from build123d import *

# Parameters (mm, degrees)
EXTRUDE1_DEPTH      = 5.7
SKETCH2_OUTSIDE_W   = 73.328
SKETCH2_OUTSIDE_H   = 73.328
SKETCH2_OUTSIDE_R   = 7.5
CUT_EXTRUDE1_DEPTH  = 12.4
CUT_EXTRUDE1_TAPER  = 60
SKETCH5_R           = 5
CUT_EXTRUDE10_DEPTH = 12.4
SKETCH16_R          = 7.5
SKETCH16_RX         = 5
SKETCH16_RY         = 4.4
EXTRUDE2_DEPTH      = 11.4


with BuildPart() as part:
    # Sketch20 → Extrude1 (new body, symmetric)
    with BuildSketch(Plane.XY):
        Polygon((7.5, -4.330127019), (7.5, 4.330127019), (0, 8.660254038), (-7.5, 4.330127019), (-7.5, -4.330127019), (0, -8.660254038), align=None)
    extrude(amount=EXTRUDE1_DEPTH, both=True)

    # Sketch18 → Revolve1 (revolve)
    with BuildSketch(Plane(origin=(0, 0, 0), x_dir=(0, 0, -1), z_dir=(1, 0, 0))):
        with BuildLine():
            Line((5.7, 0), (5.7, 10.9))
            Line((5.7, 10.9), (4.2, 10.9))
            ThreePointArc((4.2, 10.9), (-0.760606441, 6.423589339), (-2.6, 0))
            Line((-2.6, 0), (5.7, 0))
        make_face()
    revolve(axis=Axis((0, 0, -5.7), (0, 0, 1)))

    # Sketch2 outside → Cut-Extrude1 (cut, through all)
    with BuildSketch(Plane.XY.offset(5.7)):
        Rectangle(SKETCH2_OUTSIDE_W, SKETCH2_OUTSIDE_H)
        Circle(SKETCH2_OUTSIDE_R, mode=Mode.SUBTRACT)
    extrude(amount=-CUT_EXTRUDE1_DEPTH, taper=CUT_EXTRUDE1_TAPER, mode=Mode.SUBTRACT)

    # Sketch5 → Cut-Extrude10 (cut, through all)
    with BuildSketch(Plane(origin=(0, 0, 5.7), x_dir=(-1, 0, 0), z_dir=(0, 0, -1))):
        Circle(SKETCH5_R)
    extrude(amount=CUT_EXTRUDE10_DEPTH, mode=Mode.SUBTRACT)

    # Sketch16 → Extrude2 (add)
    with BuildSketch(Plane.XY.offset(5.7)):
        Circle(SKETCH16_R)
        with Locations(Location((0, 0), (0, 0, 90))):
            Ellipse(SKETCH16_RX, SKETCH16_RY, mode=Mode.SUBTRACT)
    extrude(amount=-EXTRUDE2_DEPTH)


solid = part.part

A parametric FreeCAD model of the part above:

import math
import FreeCAD as App
import Part
import Sketcher
from FreeCAD import Vector
Q = App.Units.Quantity

doc = App.newDocument("Part")
params = doc.addObject("Spreadsheet::Sheet", "Params")
for row, (alias, value) in enumerate([
    ("pad1_length", "11.4 mm"),
    ("sketch2_width", "10.9 mm"),
    ("sketch2_height", "1.5 mm"),
    ("sketch2_height2", "8.3 mm"),
    ("revolution_angle", "360 deg"),
    ("sketch3_diameter", "15 mm"),
    ("pocket1_length", "12.4 mm"),
    ("pocket1_taper", "60 deg"),
    ("sketch4_diameter", "10 mm"),
    ("sketch5_diameter", "15 mm"),
    ("pad2_length", "11.4 mm"),
], start=1):
    params.set(f"A{row}", alias)
    params.set(f"B{row}", "=" + value)
    params.setAlias(f"B{row}", alias)

body = doc.addObject("PartDesign::Body", "Body")

sketch1 = body.newObject("Sketcher::SketchObject", "Sketch")
sketch1.AttachmentSupport = (doc.getObject("XY_Plane"), [""])
sketch1.MapMode = "FlatFace"
sketch1.addGeometry(Part.LineSegment(Vector(7.5, -4.330127, 0), Vector(7.5, 4.330127, 0)), False)
sketch1.addGeometry(Part.LineSegment(Vector(7.5, 4.330127, 0), Vector(0, 8.660254, 0)), False)
sketch1.addGeometry(Part.LineSegment(Vector(0, 8.660254, 0), Vector(-7.5, 4.330127, 0)), False)
sketch1.addGeometry(Part.LineSegment(Vector(-7.5, 4.330127, 0), Vector(-7.5, -4.330127, 0)), False)
sketch1.addGeometry(Part.LineSegment(Vector(-7.5, -4.330127, 0), Vector(0, -8.660254, 0)), False)
sketch1.addGeometry(Part.LineSegment(Vector(0, -8.660254, 0), Vector(7.5, -4.330127, 0)), False)
sketch1.addConstraint(Sketcher.Constraint("Coincident", 0, 2, 1, 1))
sketch1.addConstraint(Sketcher.Constraint("Coincident", 1, 2, 2, 1))
sketch1.addConstraint(Sketcher.Constraint("Coincident", 2, 2, 3, 1))
sketch1.addConstraint(Sketcher.Constraint("Coincident", 3, 2, 4, 1))
sketch1.addConstraint(Sketcher.Constraint("Coincident", 4, 2, 5, 1))
sketch1.addConstraint(Sketcher.Constraint("Coincident", 5, 2, 0, 1))
sketch1.addConstraint(Sketcher.Constraint("Vertical", 0))
sketch1.addConstraint(Sketcher.Constraint("Vertical", 3))
sketch1.addConstraint(Sketcher.Constraint("Symmetric", 0, 2, 3, 2, -1, 1))
sketch1.addConstraint(Sketcher.Constraint("Symmetric", 1, 2, 4, 2, -1, 1))
sketch1.addConstraint(Sketcher.Constraint("PointOnObject", 1, 2, -2))
sketch1.addConstraint(Sketcher.Constraint("Parallel", 2, 5))
sketch1.addConstraint(Sketcher.Constraint("Horizontal", 0, 2, 2, 2))
sketch1.addConstraint(Sketcher.Constraint("Angle", 1, Q("150 deg")))
sketch1.addConstraint(Sketcher.Constraint("DistanceX", 2, 2, 0, 2, 15.0))
sketch1.addConstraint(Sketcher.Constraint("DistanceY", 0, 1, 0, 2, 8.660254))
pad1 = body.newObject("PartDesign::Pad", "Pad")
pad1.Profile = sketch1
pad1.setExpression("Length", "Params.pad1_length")
pad1.Midplane = True

sketch2 = body.newObject("Sketcher::SketchObject", "Sketch001")
sketch2.AttachmentSupport = (doc.getObject("YZ_Plane"), [""])
sketch2.MapMode = "FlatFace"
sketch2.addGeometry(Part.LineSegment(Vector(0, -5.7, 0), Vector(10.9, -5.7, 0)), False)
sketch2.addGeometry(Part.LineSegment(Vector(10.9, -5.7, 0), Vector(10.9, -4.2, 0)), False)
sketch2.addGeometry(Part.ArcOfCircle(Part.Circle(Vector(0, -9.536029, 0), Vector(0, 0, 1), 12.136029), math.radians(26.083781), math.radians(90)), False)
sketch2.addGeometry(Part.LineSegment(Vector(0, 2.6, 0), Vector(0, -5.7, 0)), False)
sketch2.addConstraint(Sketcher.Constraint("Coincident", 0, 2, 1, 1))
sketch2.addConstraint(Sketcher.Constraint("Coincident", 1, 2, 2, 1))
sketch2.addConstraint(Sketcher.Constraint("Coincident", 2, 2, 3, 1))
sketch2.addConstraint(Sketcher.Constraint("Coincident", 3, 2, 0, 1))
sketch2.addConstraint(Sketcher.Constraint("Horizontal", 0))
sketch2.addConstraint(Sketcher.Constraint("Vertical", 1))
sketch2.addConstraint(Sketcher.Constraint("Vertical", 3))
sketch2.addConstraint(Sketcher.Constraint("PointOnObject", 2, 3, -2))
sketch2.addConstraint(Sketcher.Constraint("PointOnObject", 2, 2, -2))
sketch2.addConstraint(Sketcher.Constraint("DistanceX", 0, 1, 0, 2, 10.9))
sketch2.addConstraint(Sketcher.Constraint("DistanceY", 1, 1, 1, 2, 1.5))
sketch2.addConstraint(Sketcher.Constraint("DistanceY", 3, 2, 3, 1, 8.3))
sketch2.addConstraint(Sketcher.Constraint("DistanceY", 0, 2, -1, 1, 5.7))
sketch2.setExpression("Constraints[9]", "Params.sketch2_width")
sketch2.setExpression("Constraints[10]", "Params.sketch2_height")
sketch2.setExpression("Constraints[11]", "Params.sketch2_height2")
revolution = body.newObject("PartDesign::Revolution", "Revolution")
revolution.Profile = sketch2
revolution.ReferenceAxis = (sketch2, ["V_Axis"])
revolution.setExpression("Angle", "Params.revolution_angle")

sketch3 = body.newObject("Sketcher::SketchObject", "Sketch002")
sketch3.AttachmentSupport = (doc.getObject("XY_Plane"), [""])
sketch3.MapMode = "FlatFace"
sketch3.AttachmentOffset = App.Placement(Vector(0, 0, 5.7), App.Rotation())
sketch3.addGeometry(Part.LineSegment(Vector(-36.664, 36.664, 0), Vector(-36.664, -36.664, 0)), False)
sketch3.addGeometry(Part.LineSegment(Vector(-36.664, -36.664, 0), Vector(36.664, -36.664, 0)), False)
sketch3.addGeometry(Part.LineSegment(Vector(36.664, -36.664, 0), Vector(36.664, 36.664, 0)), False)
sketch3.addGeometry(Part.LineSegment(Vector(36.664, 36.664, 0), Vector(-36.664, 36.664, 0)), False)
sketch3.addGeometry(Part.Circle(Vector(0, 0, 0), Vector(0, 0, 1), 7.5), False)
sketch3.addConstraint(Sketcher.Constraint("Coincident", 0, 2, 1, 1))
sketch3.addConstraint(Sketcher.Constraint("Coincident", 1, 2, 2, 1))
sketch3.addConstraint(Sketcher.Constraint("Coincident", 2, 2, 3, 1))
sketch3.addConstraint(Sketcher.Constraint("Coincident", 3, 2, 0, 1))
sketch3.addConstraint(Sketcher.Constraint("Vertical", 0))
sketch3.addConstraint(Sketcher.Constraint("Horizontal", 1))
sketch3.addConstraint(Sketcher.Constraint("Vertical", 2))
sketch3.addConstraint(Sketcher.Constraint("Horizontal", 3))
sketch3.addConstraint(Sketcher.Constraint("Coincident", 4, 3, -1, 1))
sketch3.addConstraint(Sketcher.Constraint("Symmetric", 0, 2, 2, 2, -1, 1))
sketch3.addConstraint(Sketcher.Constraint("Equal", 3, 0))
sketch3.addConstraint(Sketcher.Constraint("Diameter", 4, 15.0))
sketch3.addConstraint(Sketcher.Constraint("DistanceX", 1, 1, 1, 2, 73.328))
sketch3.setExpression("Constraints[11]", "Params.sketch3_diameter")
pocket1 = body.newObject("PartDesign::Pocket", "Pocket")
pocket1.Profile = sketch3
pocket1.setExpression("Length", "Params.pocket1_length")
pocket1.setExpression("TaperAngle", "Params.pocket1_taper")

sketch4 = body.newObject("Sketcher::SketchObject", "Sketch003")
sketch4.AttachmentSupport = (doc.getObject("XY_Plane"), [""])
sketch4.MapMode = "FlatFace"
sketch4.AttachmentOffset = App.Placement(Vector(0, 0, 5.7), App.Rotation())
sketch4.addGeometry(Part.Circle(Vector(0, 0, 0), Vector(0, 0, 1), 5), False)
sketch4.addConstraint(Sketcher.Constraint("Coincident", 0, 3, -1, 1))
sketch4.addConstraint(Sketcher.Constraint("Diameter", 0, 10.0))
sketch4.setExpression("Constraints[1]", "Params.sketch4_diameter")
pocket2 = body.newObject("PartDesign::Pocket", "Pocket001")
pocket2.Profile = sketch4
pocket2.Type = "ThroughAll"

sketch5 = body.newObject("Sketcher::SketchObject", "Sketch004")
sketch5.AttachmentSupport = (doc.getObject("XY_Plane"), [""])
sketch5.MapMode = "FlatFace"
sketch5.AttachmentOffset = App.Placement(Vector(0, 0, 5.7), App.Rotation())
sketch5.addGeometry(Part.Circle(Vector(0, 0, 0), Vector(0, 0, 1), 7.5), False)
sketch5.addGeometry(Part.Ellipse(Vector(0, 5, 0), Vector(-4.4, 0, 0), Vector(0, 0, 0)), False)
sketch5.addConstraint(Sketcher.Constraint("Block", 1))
sketch5.addConstraint(Sketcher.Constraint("Coincident", 0, 3, -1, 1))
sketch5.addConstraint(Sketcher.Constraint("Diameter", 0, 15.0))
sketch5.setExpression("Constraints[2]", "Params.sketch5_diameter")
pad2 = body.newObject("PartDesign::Pad", "Pad001")
pad2.Profile = sketch5
pad2.setExpression("Length", "Params.pad2_length")
pad2.Reversed = True

doc.recompute()
